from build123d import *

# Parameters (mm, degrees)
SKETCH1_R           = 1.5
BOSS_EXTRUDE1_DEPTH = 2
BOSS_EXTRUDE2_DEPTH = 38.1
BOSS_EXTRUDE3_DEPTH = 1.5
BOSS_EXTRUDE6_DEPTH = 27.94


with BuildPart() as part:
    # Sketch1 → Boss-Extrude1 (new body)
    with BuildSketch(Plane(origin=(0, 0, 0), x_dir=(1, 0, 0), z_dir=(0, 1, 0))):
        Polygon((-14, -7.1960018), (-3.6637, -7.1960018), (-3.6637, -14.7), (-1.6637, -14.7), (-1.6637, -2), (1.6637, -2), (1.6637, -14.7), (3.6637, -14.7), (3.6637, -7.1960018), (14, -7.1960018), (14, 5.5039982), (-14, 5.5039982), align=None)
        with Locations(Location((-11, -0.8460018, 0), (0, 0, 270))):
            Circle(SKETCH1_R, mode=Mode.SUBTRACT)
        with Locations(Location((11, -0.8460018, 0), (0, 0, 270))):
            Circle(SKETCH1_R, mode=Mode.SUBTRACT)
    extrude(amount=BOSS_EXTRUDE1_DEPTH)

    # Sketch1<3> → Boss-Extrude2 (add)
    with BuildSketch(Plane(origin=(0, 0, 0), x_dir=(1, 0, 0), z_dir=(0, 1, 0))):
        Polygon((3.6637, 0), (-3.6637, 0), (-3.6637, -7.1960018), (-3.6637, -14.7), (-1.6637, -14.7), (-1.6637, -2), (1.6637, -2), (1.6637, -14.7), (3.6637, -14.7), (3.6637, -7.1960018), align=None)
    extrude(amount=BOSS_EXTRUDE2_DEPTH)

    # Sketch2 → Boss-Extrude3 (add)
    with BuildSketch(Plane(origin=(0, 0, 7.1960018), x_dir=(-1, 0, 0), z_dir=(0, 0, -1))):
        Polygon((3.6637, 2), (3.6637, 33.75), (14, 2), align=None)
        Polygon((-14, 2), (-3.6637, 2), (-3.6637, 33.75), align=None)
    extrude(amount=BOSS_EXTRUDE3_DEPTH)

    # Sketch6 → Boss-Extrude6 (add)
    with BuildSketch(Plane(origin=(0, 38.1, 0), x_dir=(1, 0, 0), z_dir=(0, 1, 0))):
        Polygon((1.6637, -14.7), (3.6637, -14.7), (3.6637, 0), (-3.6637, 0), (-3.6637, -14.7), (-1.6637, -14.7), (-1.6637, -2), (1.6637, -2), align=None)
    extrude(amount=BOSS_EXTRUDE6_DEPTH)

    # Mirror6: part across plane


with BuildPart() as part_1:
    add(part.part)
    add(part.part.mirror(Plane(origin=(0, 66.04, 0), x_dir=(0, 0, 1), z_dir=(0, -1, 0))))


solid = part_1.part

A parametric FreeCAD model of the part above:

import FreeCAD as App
import Part
import Sketcher
from FreeCAD import Vector
Q = App.Units.Quantity

doc = App.newDocument("Part")
body = doc.addObject("PartDesign::Body", "Body")

sketch1 = body.newObject("Sketcher::SketchObject", "Sketch")
sketch1.AttachmentSupport = (doc.getObject("XZ_Plane"), [""])
sketch1.MapMode = "FlatFace"
sketch1.addGeometry(Part.LineSegment(Vector(-14, 7.2, 0), Vector(-3.7, 7.2, 0)), False)
sketch1.addGeometry(Part.LineSegment(Vector(-3.7, 7.2, 0), Vector(-3.7, 14.7, 0)), False)
sketch1.addGeometry(Part.LineSegment(Vector(-3.7, 14.7, 0), Vector(-1.7, 14.7, 0)), False)
sketch1.addGeometry(Part.LineSegment(Vector(-1.7, 14.7, 0), Vector(-1.7, 2, 0)), False)
sketch1.addGeometry(Part.LineSegment(Vector(-1.7, 2, 0), Vector(1.7, 2, 0)), False)
sketch1.addGeometry(Part.LineSegment(Vector(1.7, 2, 0), Vector(1.7, 14.7, 0)), False)
sketch1.addGeometry(Part.LineSegment(Vector(1.7, 14.7, 0), Vector(3.7, 14.7, 0)), False)
sketch1.addGeometry(Part.LineSegment(Vector(3.7, 14.7, 0), Vector(3.7, 7.2, 0)), False)
sketch1.addGeometry(Part.LineSegment(Vector(3.7, 7.2, 0), Vector(14, 7.2, 0)), False)
sketch1.addGeometry(Part.LineSegment(Vector(14, 7.2, 0), Vector(14, -5.5, 0)), False)
sketch1.addGeometry(Part.LineSegment(Vector(14, -5.5, 0), Vector(-14, -5.5, 0)), False)
sketch1.addGeometry(Part.LineSegment(Vector(-14, -5.5, 0), Vector(-14, 7.2, 0)), False)
sketch1.addGeometry(Part.Circle(Vector(-11, 0.8, 0), Vector(0, 0, 1), 1.5), False)
sketch1.addGeometry(Part.Circle(Vector(11, 0.8, 0), Vector(0, 0, 1), 1.5), False)
sketch1.addConstraint(Sketcher.Constraint("Coincident", 0, 2, 1, 1))
sketch1.addConstraint(Sketcher.Constraint("Coincident", 1, 2, 2, 1))
sketch1.addConstraint(Sketcher.Constraint("Coincident", 2, 2, 3, 1))
sketch1.addConstraint(Sketcher.Constraint("Coincident", 3, 2, 4, 1))
sketch1.addConstraint(Sketcher.Constraint("Coincident", 4, 2, 5, 1))
sketch1.addConstraint(Sketcher.Constraint("Coincident", 5, 2, 6, 1))
sketch1.addConstraint(Sketcher.Constraint("Coincident", 6, 2, 7, 1))
sketch1.addConstraint(Sketcher.Constraint("Coincident", 7, 2, 8, 1))
sketch1.addConstraint(Sketcher.Constraint("Coincident", 8, 2, 9, 1))
sketch1.addConstraint(Sketcher.Constraint("Coincident", 9, 2, 10, 1))
sketch1.addConstraint(Sketcher.Constraint("Coincident", 10, 2, 11, 1))
sketch1.addConstraint(Sketcher.Constraint("Coincident", 11, 2, 0, 1))
sketch1.addConstraint(Sketcher.Constraint("Horizontal", 0))
sketch1.addConstraint(Sketcher.Constraint("Vertical", 1))
sketch1.addConstraint(Sketcher.Constraint("Horizontal", 2))
sketch1.addConstraint(Sketcher.Constraint("Vertical", 3))
sketch1.addConstraint(Sketcher.Constraint("Horizontal", 4))
sketch1.addConstraint(Sketcher.Constraint("Vertical", 5))
sketch1.addConstraint(Sketcher.Constraint("Horizontal", 6))
sketch1.addConstraint(Sketcher.Constraint("Vertical", 7))
sketch1.addConstraint(Sketcher.Constraint("Horizontal", 8))
sketch1.addConstraint(Sketcher.Constraint("Vertical", 9))
sketch1.addConstraint(Sketcher.Constraint("Horizontal", 10))
sketch1.addConstraint(Sketcher.Constraint("Vertical", 11))
sketch1.addConstraint(Sketcher.Constraint("Equal", 12, 13))
sketch1.addConstraint(Sketcher.Constraint("Symmetric", 12, 3, 13, 3, -2))
sketch1.addConstraint(Sketcher.Constraint("Symmetric", 2, 2, 5, 2, -2))
sketch1.addConstraint(Sketcher.Constraint("Symmetric", 0, 2, 7, 2, -2))
sketch1.addConstraint(Sketcher.Constraint("Equal", 0, 8))
sketch1.addConstraint(Sketcher.Constraint("Equal", 5, 9))
sketch1.addConstraint(Sketcher.Constraint("Diameter", 12, Q("3 mm")))
sketch1.addConstraint(Sketcher.Constraint("DistanceX", 2, 1, 2, 2, Q("2 mm")))
sketch1.addConstraint(Sketcher.Constraint("DistanceX", 10, 2, 10, 1, Q("28 mm")))
sketch1.addConstraint(Sketcher.Constraint("DistanceY", 3, 2, 3, 1, Q("12.7 mm")))
sketch1.addConstraint(Sketcher.Constraint("DistanceX", 12, 3, -1, 1, Q("11 mm")))
sketch1.addConstraint(Sketcher.Constraint("DistanceY", -1, 1, 3, 2, Q("2 mm")))
sketch1.addConstraint(Sketcher.Constraint("DistanceY", 1, 1, 1, 2, Q("7.503998 mm")))
sketch1.addConstraint(Sketcher.Constraint("DistanceY", 12, 3, 0, 2, Q("6.35 mm")))
sketch1.addConstraint(Sketcher.Constraint("DistanceX", 0, 1, 0, 2, Q("10.3363 mm")))
pad1 = body.newObject("PartDesign::Pad", "Pad")
pad1.Profile = sketch1
pad1.Length = 2
pad1.Reversed = True

sketch2 = body.newObject("Sketcher::SketchObject", "Sketch001")
sketch2.AttachmentSupport = (doc.getObject("XZ_Plane"), [""])
sketch2.MapMode = "FlatFace"
sketch2.addGeometry(Part.LineSegment(Vector(3.7, 0, 0), Vector(-3.7, 0, 0)), False)
sketch2.addGeometry(Part.LineSegment(Vector(-3.7, 0, 0), Vector(-3.7, 14.7, 0)), False)
sketch2.addGeometry(Part.LineSegment(Vector(-3.7, 14.7, 0), Vector(-1.7, 14.7, 0)), False)
sketch2.addGeometry(Part.LineSegment(Vector(-1.7, 14.7, 0), Vector(-1.7, 2, 0)), False)
sketch2.addGeometry(Part.LineSegment(Vector(-1.7, 2, 0), Vector(1.7, 2, 0)), False)
sketch2.addGeometry(Part.LineSegment(Vector(1.7, 2, 0), Vector(1.7, 14.7, 0)), False)
sketch2.addGeometry(Part.LineSegment(Vector(1.7, 14.7, 0), Vector(3.7, 14.7, 0)), False)
sketch2.addGeometry(Part.LineSegment(Vector(3.7, 14.7, 0), Vector(3.7, 0, 0)), False)
sketch2.addConstraint(Sketcher.Constraint("Coincident", 0, 2, 1, 1))
sketch2.addConstraint(Sketcher.Constraint("Coincident", 1, 2, 2, 1))
sketch2.addConstraint(Sketcher.Constraint("Coincident", 2, 2, 3, 1))
sketch2.addConstraint(Sketcher.Constraint("Coincident", 3, 2, 4, 1))
sketch2.addConstraint(Sketcher.Constraint("Coincident", 4, 2, 5, 1))
sketch2.addConstraint(Sketcher.Constraint("Coincident", 5, 2, 6, 1))
sketch2.addConstraint(Sketcher.Constraint("Coincident", 6, 2, 7, 1))
sketch2.addConstraint(Sketcher.Constraint("Coincident", 7, 2, 0, 1))
sketch2.addConstraint(Sketcher.Constraint("Horizontal", 0))
sketch2.addConstraint(Sketcher.Constraint("Vertical", 1))
sketch2.addConstraint(Sketcher.Constraint("Horizontal", 2))
sketch2.addConstraint(Sketcher.Constraint("Vertical", 3))
sketch2.addConstraint(Sketcher.Constraint("Horizontal", 4))
sketch2.addConstraint(Sketcher.Constraint("Vertical", 5))
sketch2.addConstraint(Sketcher.Constraint("Horizontal", 6))
sketch2.addConstraint(Sketcher.Constraint("Vertical", 7))
sketch2.addConstraint(Sketcher.Constraint("Symmetric", 0, 2, 7, 2, -1, 1))
sketch2.addConstraint(Sketcher.Constraint("Symmetric", 2, 2, 5, 2, -2))
sketch2.addConstraint(Sketcher.Constraint("DistanceX", 2, 1, 2, 2, Q("2 mm")))
sketch2.addConstraint(Sketcher.Constraint("DistanceY", 1, 1, 1, 2, Q("14.7 mm")))
sketch2.addConstraint(Sketcher.Constraint("DistanceY", 3, 2, 3, 1, Q("12.7 mm")))
sketch2.addConstraint(Sketcher.Constraint("DistanceX", 0, 2, 0, 1, Q("7.3274 mm")))
pad2 = body.newObject("PartDesign::Pad", "Pad001")
pad2.Profile = sketch2
pad2.Length = 38.1
pad2.Reversed = True

sketch3 = body.newObject("Sketcher::SketchObject", "Sketch002")
sketch3.AttachmentSupport = (doc.getObject("XY_Plane"), [""])
sketch3.MapMode = "FlatFace"
sketch3.AttachmentOffset = App.Placement(Vector(0, 0, 7.196002), App.Rotation())
sketch3.addGeometry(Part.LineSegment(Vector(-4, 34, 0), Vector(-4, 2, 0)), False)
sketch3.addGeometry(Part.LineSegment(Vector(-4, 2, 0), Vector(-14, 2, 0)), False)
sketch3.addGeometry(Part.LineSegment(Vector(-14, 2, 0), Vector(-4, 34, 0)), False)
sketch3.addGeometry(Part.LineSegment(Vector(14, 2, 0), Vector(4, 2, 0)), False)
sketch3.addGeometry(Part.LineSegment(Vector(4, 2, 0), Vector(4, 34, 0)), False)
sketch3.addGeometry(Part.LineSegment(Vector(4, 34, 0), Vector(14, 2, 0)), False)
sketch3.addConstraint(Sketcher.Constraint("Coincident", 0, 2, 1, 1))
sketch3.addConstraint(Sketcher.Constraint("Coincident", 1, 2, 2, 1))
sketch3.addConstraint(Sketcher.Constraint("Coincident", 2, 2, 0, 1))
sketch3.addConstraint(Sketcher.Constraint("Coincident", 3, 2, 4, 1))
sketch3.addConstraint(Sketcher.Constraint("Coincident", 4, 2, 5, 1))
sketch3.addConstraint(Sketcher.Constraint("Coincident", 5, 2, 3, 1))
sketch3.addConstraint(Sketcher.Constraint("Vertical", 0))
sketch3.addConstraint(Sketcher.Constraint("Horizontal", 1))
sketch3.addConstraint(Sketcher.Constraint("Horizontal", 3))
sketch3.addConstraint(Sketcher.Constraint("Vertical", 4))
sketch3.addConstraint(Sketcher.Constraint("Symmetric", 0, 2, 3, 2, -2))
sketch3.addConstraint(Sketcher.Constraint("Horizontal", 2, 2, 4, 2))
sketch3.addConstraint(Sketcher.Constraint("Equal", 1, 3))
sketch3.addConstraint(Sketcher.Constraint("DistanceY", -1, 1, 0, 2, Q("2 mm")))
sketch3.addConstraint(Sketcher.Constraint("DistanceX", 1, 2, -1, 1, Q("14 mm")))
sketch3.addConstraint(Sketcher.Constraint("DistanceY", 0, 2, 0, 1, Q("31.75 mm")))
sketch3.addConstraint(Sketcher.Constraint("DistanceX", 1, 2, 1, 1, Q("10.3363 mm")))
pad3 = body.newObject("PartDesign::Pad", "Pad002")
pad3.Profile = sketch3
pad3.Length = 1.5
pad3.Reversed = True

sketch4 = body.newObject("Sketcher::SketchObject", "Sketch003")
sketch4.AttachmentSupport = (doc.getObject("XZ_Plane"), [""])
sketch4.MapMode = "FlatFace"
sketch4.AttachmentOffset = App.Placement(Vector(0, 0, -38.1), App.Rotation())
sketch4.addGeometry(Part.LineSegment(Vector(1.7, 14.7, 0), Vector(3.7, 14.7, 0)), False)
sketch4.addGeometry(Part.LineSegment(Vector(3.7, 14.7, 0), Vector(3.7, 0, 0)), False)
sketch4.addGeometry(Part.LineSegment(Vector(3.7, 0, 0), Vector(-3.7, 0, 0)), False)
sketch4.addGeometry(Part.LineSegment(Vector(-3.7, 0, 0), Vector(-3.7, 14.7, 0)), False)
sketch4.addGeometry(Part.LineSegment(Vector(-3.7, 14.7, 0), Vector(-1.7, 14.7, 0)), False)
sketch4.addGeometry(Part.LineSegment(Vector(-1.7, 14.7, 0), Vector(-1.7, 2, 0)), False)
sketch4.addGeometry(Part.LineSegment(Vector(-1.7, 2, 0), Vector(1.7, 2, 0)), False)
sketch4.addGeometry(Part.LineSegment(Vector(1.7, 2, 0), Vector(1.7, 14.7, 0)), False)
sketch4.addConstraint(Sketcher.Constraint("Coincident", 0, 2, 1, 1))
sketch4.addConstraint(Sketcher.Constraint("Coincident", 1, 2, 2, 1))
sketch4.addConstraint(Sketcher.Constraint("Coincident", 2, 2, 3, 1))
sketch4.addConstraint(Sketcher.Constraint("Coincident", 3, 2, 4, 1))
sketch4.addConstraint(Sketcher.Constraint("Coincident", 4, 2, 5, 1))
sketch4.addConstraint(Sketcher.Constraint("Coincident", 5, 2, 6, 1))
sketch4.addConstraint(Sketcher.Constraint("Coincident", 6, 2, 7, 1))
sketch4.addConstraint(Sketcher.Constraint("Coincident", 7, 2, 0, 1))
sketch4.addConstraint(Sketcher.Constraint("Horizontal", 0))
sketch4.addConstraint(Sketcher.Constraint("Vertical", 1))
sketch4.addConstraint(Sketcher.Constraint("Horizontal", 2))
sketch4.addConstraint(Sketcher.Constraint("Vertical", 3))
sketch4.addConstraint(Sketcher.Constraint("Horizontal", 4))
sketch4.addConstraint(Sketcher.Constraint("Vertical", 5))
sketch4.addConstraint(Sketcher.Constraint("Horizontal", 6))
sketch4.addConstraint(Sketcher.Constraint("Vertical", 7))
sketch4.addConstraint(Sketcher.Constraint("Symmetric", 1, 2, 2, 2, -1, 1))
sketch4.addConstraint(Sketcher.Constraint("Symmetric", 4, 2, 7, 2, -2))
sketch4.addConstraint(Sketcher.Constraint("DistanceX", 0, 1, 0, 2, Q("2 mm")))
sketch4.addConstraint(Sketcher.Constraint("DistanceY", 1, 2, 1, 1, Q("14.7 mm")))
sketch4.addConstraint(Sketcher.Constraint("DistanceY", 5, 2, 5, 1, Q("12.7 mm")))
sketch4.addConstraint(Sketcher.Constraint("DistanceX", 2, 2, 2, 1, Q("7.3274 mm")))
pad4 = body.newObject("PartDesign::Pad", "Pad003")
pad4.Profile = sketch4
pad4.Length = 27.94
pad4.Reversed = True
body2 = doc.addObject("PartDesign::Body", "Body001")
doc.recompute()

body2.BaseFeature = body
doc.recompute()

mirroring = doc.addObject("Part::Mirroring", "Mirroring")
mirroring.Source = body
mirroring.Base = Vector(0, 66.04, 0)
mirroring.Normal = Vector(0, -1, 0)
body3 = doc.addObject("PartDesign::Body", "Body002")
body3.BaseFeature = mirroring
boolean = body2.newObject("PartDesign::Boolean", "Boolean")
boolean.Type = "Fuse"
boolean.addObjects([body3])
doc.recompute()
mirroring.Visibility = False

doc.recompute()
